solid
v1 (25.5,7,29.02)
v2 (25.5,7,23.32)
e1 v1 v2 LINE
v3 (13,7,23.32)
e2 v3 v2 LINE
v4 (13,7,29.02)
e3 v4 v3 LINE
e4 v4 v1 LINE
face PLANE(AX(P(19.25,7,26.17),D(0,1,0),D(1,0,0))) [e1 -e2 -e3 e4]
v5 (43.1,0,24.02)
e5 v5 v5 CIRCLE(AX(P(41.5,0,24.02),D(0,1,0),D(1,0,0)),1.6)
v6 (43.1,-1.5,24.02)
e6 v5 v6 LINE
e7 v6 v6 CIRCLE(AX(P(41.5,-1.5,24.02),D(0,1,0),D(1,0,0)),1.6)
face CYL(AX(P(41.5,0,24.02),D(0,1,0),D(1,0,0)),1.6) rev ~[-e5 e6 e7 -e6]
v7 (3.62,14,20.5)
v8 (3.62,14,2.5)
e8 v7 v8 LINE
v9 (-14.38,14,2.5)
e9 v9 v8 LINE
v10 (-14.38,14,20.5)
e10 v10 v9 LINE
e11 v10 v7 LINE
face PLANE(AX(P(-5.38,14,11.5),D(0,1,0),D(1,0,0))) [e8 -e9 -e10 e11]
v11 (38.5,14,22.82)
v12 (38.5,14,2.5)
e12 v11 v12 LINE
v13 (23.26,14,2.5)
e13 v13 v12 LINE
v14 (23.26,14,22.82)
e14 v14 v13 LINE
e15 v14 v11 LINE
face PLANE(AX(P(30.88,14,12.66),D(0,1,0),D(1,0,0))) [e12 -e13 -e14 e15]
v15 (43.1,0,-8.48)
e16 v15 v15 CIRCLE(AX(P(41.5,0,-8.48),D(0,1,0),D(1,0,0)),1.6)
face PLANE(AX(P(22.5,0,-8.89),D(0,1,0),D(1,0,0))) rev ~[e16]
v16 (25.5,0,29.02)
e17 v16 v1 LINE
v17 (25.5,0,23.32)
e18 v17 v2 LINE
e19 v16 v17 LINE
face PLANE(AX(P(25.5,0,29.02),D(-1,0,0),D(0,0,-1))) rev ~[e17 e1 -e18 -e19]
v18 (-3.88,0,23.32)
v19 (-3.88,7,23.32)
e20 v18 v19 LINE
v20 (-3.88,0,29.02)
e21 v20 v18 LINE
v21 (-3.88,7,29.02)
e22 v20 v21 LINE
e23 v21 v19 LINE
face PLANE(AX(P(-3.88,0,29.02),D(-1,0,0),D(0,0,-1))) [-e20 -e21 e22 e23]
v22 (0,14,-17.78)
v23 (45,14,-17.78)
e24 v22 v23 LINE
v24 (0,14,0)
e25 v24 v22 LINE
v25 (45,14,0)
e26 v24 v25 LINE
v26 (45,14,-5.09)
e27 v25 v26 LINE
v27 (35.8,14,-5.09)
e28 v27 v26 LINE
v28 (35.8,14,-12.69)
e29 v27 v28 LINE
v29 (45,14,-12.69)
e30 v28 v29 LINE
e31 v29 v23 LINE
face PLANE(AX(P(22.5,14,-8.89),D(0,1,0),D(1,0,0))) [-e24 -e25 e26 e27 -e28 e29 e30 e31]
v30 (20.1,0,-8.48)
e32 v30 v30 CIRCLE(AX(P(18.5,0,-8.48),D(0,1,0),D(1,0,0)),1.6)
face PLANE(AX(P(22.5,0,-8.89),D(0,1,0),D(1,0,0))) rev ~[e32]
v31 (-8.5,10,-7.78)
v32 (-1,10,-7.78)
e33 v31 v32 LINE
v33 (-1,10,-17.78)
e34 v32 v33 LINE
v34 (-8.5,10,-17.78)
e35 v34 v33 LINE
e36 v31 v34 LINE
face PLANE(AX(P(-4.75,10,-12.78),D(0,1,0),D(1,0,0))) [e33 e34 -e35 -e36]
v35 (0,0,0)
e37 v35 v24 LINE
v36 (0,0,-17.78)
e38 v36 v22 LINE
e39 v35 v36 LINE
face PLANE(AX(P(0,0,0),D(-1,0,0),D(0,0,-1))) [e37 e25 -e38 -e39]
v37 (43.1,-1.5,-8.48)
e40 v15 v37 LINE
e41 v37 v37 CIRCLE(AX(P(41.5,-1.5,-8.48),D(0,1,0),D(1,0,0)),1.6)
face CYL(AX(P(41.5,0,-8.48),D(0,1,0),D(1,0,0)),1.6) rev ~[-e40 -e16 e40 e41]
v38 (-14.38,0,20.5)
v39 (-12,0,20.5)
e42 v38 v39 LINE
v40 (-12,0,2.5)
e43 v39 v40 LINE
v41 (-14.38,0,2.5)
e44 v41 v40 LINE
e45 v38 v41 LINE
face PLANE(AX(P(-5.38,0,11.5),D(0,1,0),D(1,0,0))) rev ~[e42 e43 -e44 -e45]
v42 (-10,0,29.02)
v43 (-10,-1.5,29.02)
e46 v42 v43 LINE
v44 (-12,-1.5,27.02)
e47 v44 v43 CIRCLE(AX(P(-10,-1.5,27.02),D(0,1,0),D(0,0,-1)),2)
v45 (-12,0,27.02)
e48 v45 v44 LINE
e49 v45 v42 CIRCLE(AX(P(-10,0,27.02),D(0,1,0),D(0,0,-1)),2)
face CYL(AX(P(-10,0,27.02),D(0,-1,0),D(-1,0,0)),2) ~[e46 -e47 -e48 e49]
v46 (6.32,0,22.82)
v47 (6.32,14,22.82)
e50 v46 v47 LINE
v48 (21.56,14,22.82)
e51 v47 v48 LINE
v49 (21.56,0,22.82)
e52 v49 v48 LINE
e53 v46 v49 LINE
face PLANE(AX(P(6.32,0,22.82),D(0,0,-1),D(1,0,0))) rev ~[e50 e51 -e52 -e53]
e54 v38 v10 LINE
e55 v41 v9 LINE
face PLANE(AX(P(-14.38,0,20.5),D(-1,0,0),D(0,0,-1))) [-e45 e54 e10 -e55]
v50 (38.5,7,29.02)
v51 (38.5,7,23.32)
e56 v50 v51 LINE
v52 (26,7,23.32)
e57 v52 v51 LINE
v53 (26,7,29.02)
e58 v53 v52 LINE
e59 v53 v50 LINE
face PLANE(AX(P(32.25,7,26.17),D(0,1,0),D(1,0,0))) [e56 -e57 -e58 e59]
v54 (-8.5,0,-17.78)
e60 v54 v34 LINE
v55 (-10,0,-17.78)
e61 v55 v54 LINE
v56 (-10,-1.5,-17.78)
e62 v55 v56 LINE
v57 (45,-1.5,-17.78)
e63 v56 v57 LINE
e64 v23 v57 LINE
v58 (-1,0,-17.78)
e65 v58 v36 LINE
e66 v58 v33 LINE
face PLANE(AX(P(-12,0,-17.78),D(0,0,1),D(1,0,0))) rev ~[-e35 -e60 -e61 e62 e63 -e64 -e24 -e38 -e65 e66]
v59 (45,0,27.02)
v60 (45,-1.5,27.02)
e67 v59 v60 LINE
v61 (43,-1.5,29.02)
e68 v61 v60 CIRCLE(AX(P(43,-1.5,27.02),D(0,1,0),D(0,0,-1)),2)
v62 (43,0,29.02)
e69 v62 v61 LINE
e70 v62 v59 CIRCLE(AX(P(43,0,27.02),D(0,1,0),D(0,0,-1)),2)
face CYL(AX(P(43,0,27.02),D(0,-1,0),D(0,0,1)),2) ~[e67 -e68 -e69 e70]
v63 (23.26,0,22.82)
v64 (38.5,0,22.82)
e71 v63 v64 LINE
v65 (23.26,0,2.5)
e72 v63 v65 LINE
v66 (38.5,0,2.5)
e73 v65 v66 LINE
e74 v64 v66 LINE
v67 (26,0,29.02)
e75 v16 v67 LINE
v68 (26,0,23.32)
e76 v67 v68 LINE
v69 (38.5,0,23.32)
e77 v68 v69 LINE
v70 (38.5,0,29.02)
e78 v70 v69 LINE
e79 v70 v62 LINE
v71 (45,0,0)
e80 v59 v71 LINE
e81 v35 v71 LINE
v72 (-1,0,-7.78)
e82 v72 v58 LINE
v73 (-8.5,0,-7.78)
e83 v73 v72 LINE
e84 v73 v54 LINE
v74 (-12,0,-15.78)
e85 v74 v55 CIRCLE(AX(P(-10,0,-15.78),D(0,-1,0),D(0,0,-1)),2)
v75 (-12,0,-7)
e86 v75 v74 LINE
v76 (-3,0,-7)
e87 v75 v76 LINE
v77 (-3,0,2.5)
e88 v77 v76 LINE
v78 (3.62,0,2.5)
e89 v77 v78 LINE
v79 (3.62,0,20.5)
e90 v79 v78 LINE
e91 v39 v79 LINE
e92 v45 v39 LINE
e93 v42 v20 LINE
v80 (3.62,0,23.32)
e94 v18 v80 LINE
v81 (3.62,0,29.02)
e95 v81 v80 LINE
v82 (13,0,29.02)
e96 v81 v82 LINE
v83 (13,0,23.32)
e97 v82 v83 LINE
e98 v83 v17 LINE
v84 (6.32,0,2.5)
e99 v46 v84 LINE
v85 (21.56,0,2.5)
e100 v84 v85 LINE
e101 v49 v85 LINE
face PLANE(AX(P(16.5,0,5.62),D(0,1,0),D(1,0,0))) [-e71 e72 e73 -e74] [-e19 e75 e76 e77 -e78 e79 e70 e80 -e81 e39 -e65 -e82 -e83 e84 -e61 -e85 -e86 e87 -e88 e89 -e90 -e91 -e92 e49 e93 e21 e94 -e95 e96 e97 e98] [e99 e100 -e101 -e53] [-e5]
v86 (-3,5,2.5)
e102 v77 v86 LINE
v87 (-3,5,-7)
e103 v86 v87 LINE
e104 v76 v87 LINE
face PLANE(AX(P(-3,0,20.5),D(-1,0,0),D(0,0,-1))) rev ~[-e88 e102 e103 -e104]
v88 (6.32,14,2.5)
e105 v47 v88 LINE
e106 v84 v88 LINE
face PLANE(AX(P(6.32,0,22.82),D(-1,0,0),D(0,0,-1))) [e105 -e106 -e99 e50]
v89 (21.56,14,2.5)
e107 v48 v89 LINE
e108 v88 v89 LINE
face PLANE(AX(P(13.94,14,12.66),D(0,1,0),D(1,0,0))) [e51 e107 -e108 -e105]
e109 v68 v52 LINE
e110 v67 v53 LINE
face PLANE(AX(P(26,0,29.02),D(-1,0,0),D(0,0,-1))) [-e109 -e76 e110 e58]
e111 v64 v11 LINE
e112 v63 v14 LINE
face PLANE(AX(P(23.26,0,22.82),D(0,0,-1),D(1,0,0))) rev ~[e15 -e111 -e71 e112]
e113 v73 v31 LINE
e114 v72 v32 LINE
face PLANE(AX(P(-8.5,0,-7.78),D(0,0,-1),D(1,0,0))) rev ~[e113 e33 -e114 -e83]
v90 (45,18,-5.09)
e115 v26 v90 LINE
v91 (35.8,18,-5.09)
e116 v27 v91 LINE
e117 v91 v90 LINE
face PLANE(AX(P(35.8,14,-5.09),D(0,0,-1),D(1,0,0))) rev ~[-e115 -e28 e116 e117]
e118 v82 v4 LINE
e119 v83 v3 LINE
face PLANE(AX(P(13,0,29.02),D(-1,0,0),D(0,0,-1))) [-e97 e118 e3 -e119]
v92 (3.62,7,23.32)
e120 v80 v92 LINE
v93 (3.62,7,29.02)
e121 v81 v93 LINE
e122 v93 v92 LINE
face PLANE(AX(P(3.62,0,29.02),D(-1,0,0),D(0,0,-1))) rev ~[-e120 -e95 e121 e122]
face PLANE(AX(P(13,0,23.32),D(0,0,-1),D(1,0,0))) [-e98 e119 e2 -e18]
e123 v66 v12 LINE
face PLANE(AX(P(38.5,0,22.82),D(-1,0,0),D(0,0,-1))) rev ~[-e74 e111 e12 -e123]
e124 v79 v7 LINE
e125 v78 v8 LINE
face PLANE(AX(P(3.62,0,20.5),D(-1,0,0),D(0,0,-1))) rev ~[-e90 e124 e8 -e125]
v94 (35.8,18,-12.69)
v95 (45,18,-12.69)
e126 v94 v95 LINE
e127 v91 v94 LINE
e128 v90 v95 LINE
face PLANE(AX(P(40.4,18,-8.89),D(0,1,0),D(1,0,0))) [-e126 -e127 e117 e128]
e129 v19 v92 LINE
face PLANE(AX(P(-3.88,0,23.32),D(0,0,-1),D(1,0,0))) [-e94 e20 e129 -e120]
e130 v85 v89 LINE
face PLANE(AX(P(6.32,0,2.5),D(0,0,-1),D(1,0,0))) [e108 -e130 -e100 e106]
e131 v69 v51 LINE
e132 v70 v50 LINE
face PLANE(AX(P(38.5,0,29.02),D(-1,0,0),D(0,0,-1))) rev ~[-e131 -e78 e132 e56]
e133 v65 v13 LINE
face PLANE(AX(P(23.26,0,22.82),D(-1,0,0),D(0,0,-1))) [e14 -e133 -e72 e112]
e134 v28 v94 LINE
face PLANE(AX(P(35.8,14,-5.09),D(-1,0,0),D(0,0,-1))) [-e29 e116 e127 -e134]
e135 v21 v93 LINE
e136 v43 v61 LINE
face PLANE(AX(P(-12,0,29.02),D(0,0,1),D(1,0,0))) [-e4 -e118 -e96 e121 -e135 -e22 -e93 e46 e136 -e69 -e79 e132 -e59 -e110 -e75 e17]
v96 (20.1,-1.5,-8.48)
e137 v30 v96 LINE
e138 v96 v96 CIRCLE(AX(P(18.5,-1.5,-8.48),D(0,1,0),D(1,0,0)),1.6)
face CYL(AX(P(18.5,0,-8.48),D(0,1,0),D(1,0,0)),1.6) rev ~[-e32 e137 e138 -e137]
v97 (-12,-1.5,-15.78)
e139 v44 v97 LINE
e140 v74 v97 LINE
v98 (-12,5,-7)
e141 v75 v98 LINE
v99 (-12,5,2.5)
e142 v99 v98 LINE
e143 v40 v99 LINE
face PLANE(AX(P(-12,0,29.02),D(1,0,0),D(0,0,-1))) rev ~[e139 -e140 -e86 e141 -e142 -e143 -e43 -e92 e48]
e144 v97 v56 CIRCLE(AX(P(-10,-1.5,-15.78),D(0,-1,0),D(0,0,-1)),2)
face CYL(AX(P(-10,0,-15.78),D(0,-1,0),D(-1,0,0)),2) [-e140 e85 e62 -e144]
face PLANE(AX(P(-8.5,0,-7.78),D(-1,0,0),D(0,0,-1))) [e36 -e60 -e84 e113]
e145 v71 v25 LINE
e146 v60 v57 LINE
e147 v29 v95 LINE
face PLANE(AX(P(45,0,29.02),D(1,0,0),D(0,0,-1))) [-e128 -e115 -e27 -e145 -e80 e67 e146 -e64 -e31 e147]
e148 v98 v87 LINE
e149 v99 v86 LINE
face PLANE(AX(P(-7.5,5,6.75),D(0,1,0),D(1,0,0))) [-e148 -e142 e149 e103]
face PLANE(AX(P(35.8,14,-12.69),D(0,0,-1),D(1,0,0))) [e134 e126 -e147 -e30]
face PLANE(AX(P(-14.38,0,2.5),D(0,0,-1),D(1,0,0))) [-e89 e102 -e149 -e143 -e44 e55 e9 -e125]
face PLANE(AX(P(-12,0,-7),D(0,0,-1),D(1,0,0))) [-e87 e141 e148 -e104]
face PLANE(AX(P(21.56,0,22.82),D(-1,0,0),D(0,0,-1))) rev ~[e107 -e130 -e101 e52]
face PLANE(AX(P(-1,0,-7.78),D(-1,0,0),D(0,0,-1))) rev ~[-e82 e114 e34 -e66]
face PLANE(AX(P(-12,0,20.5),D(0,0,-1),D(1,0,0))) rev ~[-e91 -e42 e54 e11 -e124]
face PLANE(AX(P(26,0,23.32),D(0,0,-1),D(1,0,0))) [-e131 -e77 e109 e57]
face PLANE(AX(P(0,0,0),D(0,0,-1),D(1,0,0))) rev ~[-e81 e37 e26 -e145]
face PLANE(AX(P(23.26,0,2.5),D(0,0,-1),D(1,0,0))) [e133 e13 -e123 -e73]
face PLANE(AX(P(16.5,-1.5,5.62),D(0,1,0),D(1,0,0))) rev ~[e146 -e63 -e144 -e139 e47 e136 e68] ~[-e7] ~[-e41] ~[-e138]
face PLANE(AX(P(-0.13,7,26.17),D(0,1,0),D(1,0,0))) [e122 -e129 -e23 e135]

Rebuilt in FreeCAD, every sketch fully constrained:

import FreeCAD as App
import Part
import Sketcher
from FreeCAD import Vector
Q = App.Units.Quantity


def edges_at(feature, points):
    """Names of the edges that pass closest to the given points."""
    edges = feature.Shape.Edges
    near = lambda p: min(range(len(edges)), key=lambda i: edges[i].distToShape(Part.Vertex(*p))[0])
    return sorted({f"Edge{near(p) + 1}" for p in points})


def add_polygon(sketch, points):
    """Adds a closed chain of lines whose ends are joined by coincident constraints."""
    first, n = sketch.GeometryCount, len(points)
    for a, b in zip(points, points[1:] + points[:1]):
        sketch.addGeometry(Part.LineSegment(App.Vector(*a, 0), App.Vector(*b, 0)), False)
    for i in range(n):
        sketch.addConstraint(Sketcher.Constraint("Coincident", first + i, 2, first + (i + 1) % n, 1))

doc = App.newDocument("Part")
body = doc.addObject("PartDesign::Body", "Body")

# Sketch on XZ plane
sketch1 = body.newObject("Sketcher::SketchObject", "Sketch")
sketch1.AttachmentSupport = (doc.getObject("XZ_Plane"), [""])
sketch1.MapMode = "FlatFace"
add_polygon(sketch1, [(0, -18), (0, 0), (45, 0), (45, -18)])  # lines 0-3
sketch1.addConstraint([
    Sketcher.Constraint("Vertical", 0),
    Sketcher.Constraint("Horizontal", 1),
    Sketcher.Constraint("Vertical", 2),
    Sketcher.Constraint("Horizontal", 3),
    Sketcher.Constraint("Coincident", 0, 2, -1, 1),
    Sketcher.Constraint("DistanceX", 1, 1, 1, 2, Q("45 mm")),
    Sketcher.Constraint("DistanceY", 0, 1, 0, 2, Q("17.78 mm")),
])
pad1 = body.newObject("PartDesign::Pad", "Pad")
pad1.Profile = sketch1
pad1.Length = 14
pad1.Reversed = True
body2 = doc.addObject("PartDesign::Body", "Body001")

# Sketch on XZ plane
sketch2 = body2.newObject("Sketcher::SketchObject", "Sketch001")
sketch2.AttachmentSupport = (doc.getObject("XZ_Plane001"), [""])
sketch2.MapMode = "FlatFace"
add_polygon(sketch2, [(23, 2), (23, 23), (38, 23), (38, 2)])  # lines 0-3
sketch2.addConstraint([
    Sketcher.Constraint("Vertical", 0),
    Sketcher.Constraint("Horizontal", 1),
    Sketcher.Constraint("Vertical", 2),
    Sketcher.Constraint("Horizontal", 3),
    Sketcher.Constraint("DistanceX", 1, 1, 1, 2, Q("15.24 mm")),
    Sketcher.Constraint("DistanceY", 0, 1, 0, 2, Q("20.32 mm")),
    Sketcher.Constraint("DistanceX", -1, 1, 1, 2, Q("38.5 mm")),
    Sketcher.Constraint("DistanceY", -1, 1, 2, 2, Q("2.5 mm")),
])
pad2 = body2.newObject("PartDesign::Pad", "Pad001")
pad2.Profile = sketch2
pad2.Length = 14
pad2.Reversed = True
body3 = doc.addObject("PartDesign::Body", "Body002")

# Sketch on XZ plane
sketch3 = body3.newObject("Sketcher::SketchObject", "Sketch002")
sketch3.AttachmentSupport = (doc.getObject("XZ_Plane002"), [""])
sketch3.MapMode = "FlatFace"
add_polygon(sketch3, [(6, 2), (6, 23), (22, 23), (22, 2)])  # lines 0-3
sketch3.addConstraint([
    Sketcher.Constraint("Vertical", 0),
    Sketcher.Constraint("Horizontal", 1),
    Sketcher.Constraint("Vertical", 2),
    Sketcher.Constraint("Horizontal", 3),
    Sketcher.Constraint("DistanceX", 1, 1, 1, 2, Q("15.24 mm")),
    Sketcher.Constraint("DistanceY", 0, 1, 0, 2, Q("20.32 mm")),
    Sketcher.Constraint("DistanceY", -1, 1, 2, 2, Q("2.5 mm")),
    Sketcher.Constraint("DistanceX", -1, 1, 0, 2, Q("6.32 mm")),
])
pad3 = body3.newObject("PartDesign::Pad", "Pad002")
pad3.Profile = sketch3
pad3.Length = 14
pad3.Reversed = True
body4 = doc.addObject("PartDesign::Body", "Body003")

# Sketch on XZ plane
sketch4 = body4.newObject("Sketcher::SketchObject", "Sketch003")
sketch4.AttachmentSupport = (doc.getObject("XZ_Plane003"), [""])
sketch4.MapMode = "FlatFace"
add_polygon(sketch4, [(-14, 2), (-14, 20), (4, 20), (4, 2)])  # lines 0-3
sketch4.addConstraint([
    Sketcher.Constraint("Vertical", 0),
    Sketcher.Constraint("Horizontal", 1),
    Sketcher.Constraint("Vertical", 2),
    Sketcher.Constraint("Horizontal", 3),
    Sketcher.Constraint("Equal", 3, 0),
    Sketcher.Constraint("DistanceX", 1, 1, 1, 2, Q("18 mm")),
    Sketcher.Constraint("DistanceY", -1, 1, 0, 2, Q("20.5 mm")),
    Sketcher.Constraint("DistanceX", 0, 2, -1, 1, Q("14.38 mm")),
])
pad4 = body4.newObject("PartDesign::Pad", "Pad003")
pad4.Profile = sketch4
pad4.Length = 14
pad4.Reversed = True
body5 = doc.addObject("PartDesign::Body", "Body004")

# Sketch on XZ plane
sketch5 = body5.newObject("Sketcher::SketchObject", "Sketch004")
sketch5.AttachmentSupport = (doc.getObject("XZ_Plane004"), [""])
sketch5.MapMode = "FlatFace"
add_polygon(sketch5, [(26, 23), (26, 29), (38, 29), (38, 23)])  # lines 0-3
sketch5.addConstraint([
    Sketcher.Constraint("Vertical", 0),
    Sketcher.Constraint("Horizontal", 1),
    Sketcher.Constraint("Vertical", 2),
    Sketcher.Constraint("Horizontal", 3),
    Sketcher.Constraint("DistanceX", 1, 1, 1, 2, Q("12.5 mm")),
    Sketcher.Constraint("DistanceY", 0, 1, 0, 2, Q("5.7 mm")),
    Sketcher.Constraint("DistanceX", -1, 1, 0, 2, Q("26 mm")),
    Sketcher.Constraint("DistanceY", -1, 1, 0, 2, Q("29.02 mm")),
])
pad5 = body5.newObject("PartDesign::Pad", "Pad004")
pad5.Profile = sketch5
pad5.Length = 7
pad5.Reversed = True
body6 = doc.addObject("PartDesign::Body", "Body005")

# Sketch on XZ plane
sketch6 = body6.newObject("Sketcher::SketchObject", "Sketch005")
sketch6.AttachmentSupport = (doc.getObject("XZ_Plane005"), [""])
sketch6.MapMode = "FlatFace"
add_polygon(sketch6, [(13, 23), (13, 29), (26, 29), (26, 23)])  # lines 0-3
sketch6.addConstraint([
    Sketcher.Constraint("Vertical", 0),
    Sketcher.Constraint("Horizontal", 1),
    Sketcher.Constraint("Vertical", 2),
    Sketcher.Constraint("Horizontal", 3),
    Sketcher.Constraint("DistanceX", 1, 1, 1, 2, Q("12.5 mm")),
    Sketcher.Constraint("DistanceY", 0, 1, 0, 2, Q("5.7 mm")),
    Sketcher.Constraint("DistanceX", -1, 1, 0, 2, Q("13 mm")),
    Sketcher.Constraint("DistanceY", -1, 1, 0, 2, Q("29.02 mm")),
])
pad6 = body6.newObject("PartDesign::Pad", "Pad005")
pad6.Profile = sketch6
pad6.Length = 7
pad6.Reversed = True
body7 = doc.addObject("PartDesign::Body", "Body006")

# Sketch on XZ plane
sketch7 = body7.newObject("Sketcher::SketchObject", "Sketch006")
sketch7.AttachmentSupport = (doc.getObject("XZ_Plane006"), [""])
sketch7.MapMode = "FlatFace"
add_polygon(sketch7, [(-4, 23), (-4, 29), (4, 29), (4, 23)])  # lines 0-3
sketch7.addConstraint([
    Sketcher.Constraint("Vertical", 0),
    Sketcher.Constraint("Horizontal", 1),
    Sketcher.Constraint("Vertical", 2),
    Sketcher.Constraint("Horizontal", 3),
    Sketcher.Constraint("DistanceX", 1, 1, 1, 2, Q("7.5 mm")),
    Sketcher.Constraint("DistanceY", 0, 1, 0, 2, Q("5.7 mm")),
    Sketcher.Constraint("DistanceX", 0, 2, -1, 1, Q("3.88 mm")),
    Sketcher.Constraint("DistanceY", -1, 1, 0, 2, Q("29.02 mm")),
])
pad7 = body7.newObject("PartDesign::Pad", "Pad006")
pad7.Profile = sketch7
pad7.Length = 7
pad7.Reversed = True
body8 = doc.addObject("PartDesign::Body", "Body007")

# Sketch on XZ plane
sketch8 = body8.newObject("Sketcher::SketchObject", "Sketch007")
sketch8.AttachmentSupport = (doc.getObject("XZ_Plane007"), [""])
sketch8.MapMode = "FlatFace"
add_polygon(sketch8, [(-12, -7), (-12, 20), (-3, 20), (-3, -7)])  # lines 0-3
sketch8.addConstraint([
    Sketcher.Constraint("Vertical", 0),
    Sketcher.Constraint("Horizontal", 1),
    Sketcher.Constraint("Vertical", 2),
    Sketcher.Constraint("Horizontal", 3),
    Sketcher.Constraint("DistanceX", 1, 1, 1, 2, Q("9 mm")),
    Sketcher.Constraint("DistanceY", 0, 1, 0, 2, Q("27.5 mm")),
    Sketcher.Constraint("DistanceX", 0, 2, -1, 1, Q("12 mm")),
    Sketcher.Constraint("DistanceY", 2, 2, -1, 1, Q("7 mm")),
])
pad8 = body8.newObject("PartDesign::Pad", "Pad007")
pad8.Profile = sketch8
pad8.Length = 5
pad8.Reversed = True
body9 = doc.addObject("PartDesign::Body", "Body008")

# Sketch on XZ plane
sketch9 = body9.newObject("Sketcher::SketchObject", "Sketch008")
sketch9.AttachmentSupport = (doc.getObject("XZ_Plane008"), [""])
sketch9.MapMode = "FlatFace"
add_polygon(sketch9, [(-8, -18), (-8, -8), (-1, -8), (-1, -18)])  # lines 0-3
sketch9.addConstraint([
    Sketcher.Constraint("Vertical", 0),
    Sketcher.Constraint("Horizontal", 1),
    Sketcher.Constraint("Vertical", 2),
    Sketcher.Constraint("Horizontal", 3),
    Sketcher.Constraint("DistanceY", 0, 1, 0, 2, Q("10 mm")),
    Sketcher.Constraint("DistanceX", 1, 1, 1, 2, Q("7.5 mm")),
    Sketcher.Constraint("DistanceX", 1, 2, -1, 1, Q("1 mm")),
    Sketcher.Constraint("DistanceY", 0, 2, -1, 1, Q("7.78 mm")),
])
pad9 = body9.newObject("PartDesign::Pad", "Pad008")
pad9.Profile = sketch9
pad9.Length = 10
pad9.Reversed = True
body.AllowCompound = True
doc.recompute()

boolean = body.newObject("PartDesign::Boolean", "Boolean")
boolean.Type = "Fuse"
boolean.addObjects([body2])
doc.recompute()

boolean2 = body.newObject("PartDesign::Boolean", "Boolean001")
boolean2.Type = "Fuse"
boolean2.addObjects([body3])
doc.recompute()

boolean3 = body.newObject("PartDesign::Boolean", "Boolean002")
boolean3.Type = "Fuse"
boolean3.addObjects([body4])
doc.recompute()

boolean4 = body.newObject("PartDesign::Boolean", "Boolean003")
boolean4.Type = "Fuse"
boolean4.addObjects([body5])
doc.recompute()

boolean5 = body.newObject("PartDesign::Boolean", "Boolean004")
boolean5.Type = "Fuse"
boolean5.addObjects([body6])
doc.recompute()

boolean6 = body.newObject("PartDesign::Boolean", "Boolean005")
boolean6.Type = "Fuse"
boolean6.addObjects([body7])
doc.recompute()

boolean7 = body.newObject("PartDesign::Boolean", "Boolean006")
boolean7.Type = "Fuse"
boolean7.addObjects([body8])
doc.recompute()

boolean8 = body.newObject("PartDesign::Boolean", "Boolean007")
boolean8.Type = "Fuse"
boolean8.addObjects([body9])

# Sketch on XZ plane
sketch10 = body.newObject("Sketcher::SketchObject", "Sketch009")
sketch10.AttachmentSupport = (doc.getObject("XZ_Plane"), [""])
sketch10.MapMode = "FlatFace"
add_polygon(sketch10, [(-12, -17.8), (-12, 29), (45, 29), (45, -17.8)])  # lines 0-3
sketch10.addGeometry(Part.Circle(Vector(41.5, 24, 0), Vector(0, 0, 1), 1.6), False)  # 4
sketch10.addGeometry(Part.Circle(Vector(18.5, -8.5, 0), Vector(0, 0, 1), 1.6), False)  # 5
sketch10.addGeometry(Part.Circle(Vector(41.5, -8.5, 0), Vector(0, 0, 1), 1.6), False)  # 6
sketch10.addConstraint([
    Sketcher.Constraint("Vertical", 0),
    Sketcher.Constraint("Horizontal", 1),
    Sketcher.Constraint("Vertical", 2),
    Sketcher.Constraint("Horizontal", 3),
    Sketcher.Constraint("Equal", 4, 5),
    Sketcher.Constraint("Equal", 5, 6),
    Sketcher.Constraint("Horizontal", 5, 3, 6, 3),
    Sketcher.Constraint("Vertical", 4, 3, 6, 3),
    Sketcher.Constraint("Diameter", 4, Q("3.2 mm")),
    Sketcher.Constraint("DistanceX", 1, 1, 1, 2, Q("57 mm")),
    Sketcher.Constraint("DistanceY", 0, 1, 0, 2, Q("46.8 mm")),
    Sketcher.Constraint("DistanceX", 0, 2, -1, 1, Q("12 mm")),
    Sketcher.Constraint("DistanceX", 5, 3, 4, 3, Q("23 mm")),
    Sketcher.Constraint("DistanceY", 4, 3, 0, 2, Q("5 mm")),
    Sketcher.Constraint("DistanceX", -1, 1, 4, 3, Q("41.5 mm")),
    Sketcher.Constraint("DistanceY", 5, 3, 4, 3, Q("32.5 mm")),
    Sketcher.Constraint("DistanceY", -1, 1, 4, 3, Q("24.02 mm")),
])
pad10 = body.newObject("PartDesign::Pad", "Pad009")
pad10.Profile = sketch10
pad10.Length = 1.5

# Sketch on XZ plane
sketch11 = body.newObject("Sketcher::SketchObject", "Sketch010")
sketch11.AttachmentSupport = (doc.getObject("XZ_Plane"), [""])
sketch11.MapMode = "FlatFace"
sketch11.AttachmentOffset = App.Placement(Vector(0, 0, -14), App.Rotation())
add_polygon(sketch11, [(36, -13), (36, -5), (45, -5), (45, -13)])  # lines 0-3
sketch11.addConstraint([
    Sketcher.Constraint("Vertical", 0),
    Sketcher.Constraint("Horizontal", 1),
    Sketcher.Constraint("Vertical", 2),
    Sketcher.Constraint("Horizontal", 3),
    Sketcher.Constraint("DistanceX", 1, 1, 1, 2, Q("9.2 mm")),
    Sketcher.Constraint("DistanceY", 0, 1, 0, 2, Q("7.6 mm")),
    Sketcher.Constraint("DistanceX", -1, 1, 1, 2, Q("45 mm")),
    Sketcher.Constraint("DistanceY", 0, 2, -1, 1, Q("5.09 mm")),
])
pad11 = body.newObject("PartDesign::Pad", "Pad010")
pad11.Profile = sketch11
pad11.Length = 4
pad11.Reversed = True
doc.recompute()

fillet = body.newObject("PartDesign::Fillet", "Fillet")
fillet.Base = (pad11, edges_at(pad11, [(45, -0.75, 29.02), (-12, -0.75, 29.02), (-12, -0.75, -17.78)]))
fillet.Radius = 2

doc.recompute()
